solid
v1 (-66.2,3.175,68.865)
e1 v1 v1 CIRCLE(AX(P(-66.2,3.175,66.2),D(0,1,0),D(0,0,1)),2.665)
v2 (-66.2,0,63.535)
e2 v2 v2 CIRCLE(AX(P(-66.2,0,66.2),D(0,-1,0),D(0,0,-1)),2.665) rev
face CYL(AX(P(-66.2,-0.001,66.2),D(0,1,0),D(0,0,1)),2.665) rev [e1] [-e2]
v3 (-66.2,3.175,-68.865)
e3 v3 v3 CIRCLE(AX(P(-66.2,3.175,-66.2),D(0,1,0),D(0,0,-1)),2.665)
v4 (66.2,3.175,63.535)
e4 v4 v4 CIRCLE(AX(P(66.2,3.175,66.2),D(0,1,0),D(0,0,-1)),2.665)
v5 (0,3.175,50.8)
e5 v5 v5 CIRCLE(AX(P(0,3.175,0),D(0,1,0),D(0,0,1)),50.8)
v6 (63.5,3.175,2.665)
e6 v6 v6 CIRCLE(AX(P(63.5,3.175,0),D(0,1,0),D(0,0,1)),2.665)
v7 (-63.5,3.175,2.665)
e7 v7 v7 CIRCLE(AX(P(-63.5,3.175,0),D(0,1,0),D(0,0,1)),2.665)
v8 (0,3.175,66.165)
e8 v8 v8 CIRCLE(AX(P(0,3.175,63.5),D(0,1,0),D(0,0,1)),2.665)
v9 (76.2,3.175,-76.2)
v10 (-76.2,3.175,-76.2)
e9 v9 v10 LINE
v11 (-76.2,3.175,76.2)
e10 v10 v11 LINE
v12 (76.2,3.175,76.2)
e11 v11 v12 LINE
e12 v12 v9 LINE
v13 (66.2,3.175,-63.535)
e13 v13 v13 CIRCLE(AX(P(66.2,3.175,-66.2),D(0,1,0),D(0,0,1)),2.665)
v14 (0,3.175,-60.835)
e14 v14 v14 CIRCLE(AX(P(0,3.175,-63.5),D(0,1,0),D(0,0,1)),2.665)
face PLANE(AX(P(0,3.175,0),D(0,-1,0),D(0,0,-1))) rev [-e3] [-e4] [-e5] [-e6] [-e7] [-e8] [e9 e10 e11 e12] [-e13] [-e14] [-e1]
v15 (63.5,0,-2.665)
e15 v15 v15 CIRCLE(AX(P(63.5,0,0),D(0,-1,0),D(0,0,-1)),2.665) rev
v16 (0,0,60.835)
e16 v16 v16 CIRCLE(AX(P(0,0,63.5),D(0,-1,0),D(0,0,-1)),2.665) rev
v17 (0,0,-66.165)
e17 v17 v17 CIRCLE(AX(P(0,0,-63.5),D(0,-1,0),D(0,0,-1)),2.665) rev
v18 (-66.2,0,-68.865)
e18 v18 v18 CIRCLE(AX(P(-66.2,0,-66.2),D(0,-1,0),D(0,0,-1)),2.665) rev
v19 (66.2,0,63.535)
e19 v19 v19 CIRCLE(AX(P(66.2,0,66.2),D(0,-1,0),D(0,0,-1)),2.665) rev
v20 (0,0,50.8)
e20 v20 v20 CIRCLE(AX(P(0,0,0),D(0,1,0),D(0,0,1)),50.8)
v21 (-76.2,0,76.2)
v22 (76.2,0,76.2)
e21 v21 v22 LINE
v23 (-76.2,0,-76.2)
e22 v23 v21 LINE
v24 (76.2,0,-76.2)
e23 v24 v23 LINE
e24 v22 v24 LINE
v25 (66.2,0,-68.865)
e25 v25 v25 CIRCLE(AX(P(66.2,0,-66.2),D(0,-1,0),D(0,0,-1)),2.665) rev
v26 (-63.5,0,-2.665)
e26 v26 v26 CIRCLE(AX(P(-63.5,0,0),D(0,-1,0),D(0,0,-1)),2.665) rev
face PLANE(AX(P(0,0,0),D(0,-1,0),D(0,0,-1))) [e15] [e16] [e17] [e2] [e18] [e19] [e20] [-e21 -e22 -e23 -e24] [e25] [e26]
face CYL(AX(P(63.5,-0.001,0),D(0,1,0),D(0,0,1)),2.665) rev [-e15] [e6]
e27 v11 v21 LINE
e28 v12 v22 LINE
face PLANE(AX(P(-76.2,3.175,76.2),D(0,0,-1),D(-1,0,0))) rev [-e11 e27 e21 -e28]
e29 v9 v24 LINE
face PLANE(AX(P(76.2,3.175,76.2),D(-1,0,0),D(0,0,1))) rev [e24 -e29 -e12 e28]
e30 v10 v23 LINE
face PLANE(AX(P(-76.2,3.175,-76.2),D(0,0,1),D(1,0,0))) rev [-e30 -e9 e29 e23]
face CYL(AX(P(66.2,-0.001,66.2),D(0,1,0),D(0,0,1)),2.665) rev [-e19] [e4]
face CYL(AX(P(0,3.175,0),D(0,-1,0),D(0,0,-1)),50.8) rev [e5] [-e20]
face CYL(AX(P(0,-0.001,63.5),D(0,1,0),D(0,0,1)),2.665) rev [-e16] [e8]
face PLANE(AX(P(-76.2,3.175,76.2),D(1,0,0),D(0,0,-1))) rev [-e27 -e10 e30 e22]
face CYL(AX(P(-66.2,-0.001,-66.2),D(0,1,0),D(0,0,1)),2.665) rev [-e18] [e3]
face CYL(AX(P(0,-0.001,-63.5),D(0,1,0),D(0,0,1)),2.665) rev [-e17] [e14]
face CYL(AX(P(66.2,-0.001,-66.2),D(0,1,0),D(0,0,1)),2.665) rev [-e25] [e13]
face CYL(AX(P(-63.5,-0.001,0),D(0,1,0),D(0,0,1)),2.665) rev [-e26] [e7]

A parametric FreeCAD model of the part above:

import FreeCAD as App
import Part
import Sketcher

V = App.Vector
Q = App.Units.Quantity

doc = App.newDocument("Part")
body = doc.addObject("PartDesign::Body", "Body")

sketch1 = body.newObject("Sketcher::SketchObject", "Sketch")
sketch1.AttachmentSupport = (doc.getObject("XZ_Plane"), [""])
sketch1.MapMode = "FlatFace"
sketch1.addGeometry([
    Part.LineSegment(V(-76.2, -76.2, 0), V(-76.2, 76.2, 0)),
    Part.LineSegment(V(-76.2, 76.2, 0), V(76.2, 76.2, 0)),
    Part.LineSegment(V(76.2, 76.2, 0), V(76.2, -76.2, 0)),
    Part.LineSegment(V(76.2, -76.2, 0), V(-76.2, -76.2, 0)),
    Part.Circle(V(0, 0, 0), V(0, 0, 1), 50.8),
], False)
sketch1.addConstraint([
    Sketcher.Constraint("Coincident", 0, 2, 1, 1),
    Sketcher.Constraint("Coincident", 1, 2, 2, 1),
    Sketcher.Constraint("Coincident", 2, 2, 3, 1),
    Sketcher.Constraint("Coincident", 3, 2, 0, 1),
    Sketcher.Constraint("Vertical", 0),
    Sketcher.Constraint("Horizontal", 1),
    Sketcher.Constraint("Vertical", 2),
    Sketcher.Constraint("Horizontal", 3),
    Sketcher.Constraint("Coincident", 4, 3, -1, 1),
    Sketcher.Constraint("Symmetric", 0, 2, 2, 2, -1, 1),
    Sketcher.Constraint("Equal", 3, 0),
    Sketcher.Constraint("Diameter", 4, Q("4 in")),
    Sketcher.Constraint("DistanceX", 1, 1, 1, 2, Q("6 in")),
])
pad1 = body.newObject("PartDesign::Pad", "Pad")
pad1.Profile = sketch1
pad1.Length = Q("0.125 in")
pad1.Reversed = True

sketch2 = body.newObject("Sketcher::SketchObject", "Sketch001")
sketch2.AttachmentSupport = (doc.getObject("XZ_Plane"), [""])
sketch2.MapMode = "FlatFace"
sketch2.AttachmentOffset = App.Placement(V(0, 0, -0.125 * 25.4), App.Rotation())
sketch2.addGeometry(Part.Circle(V(-66.2, 66.2, 0), V(0, 0, 1), 2.665), False)
sketch2.addConstraint([
    Sketcher.Constraint("Diameter", 0, Q("5.33 mm")),
    Sketcher.Constraint("DistanceX", 0, 3, -1, 1, Q("66.2 mm")),
    Sketcher.Constraint("DistanceY", -1, 1, 0, 3, Q("66.2 mm")),
])
pocket1 = body.newObject("PartDesign::Pocket", "Pocket")
pocket1.Profile = sketch2
pocket1.Type = "UpToFirst"
pocket1.Reversed = True

sketch3 = body.newObject("Sketcher::SketchObject", "Sketch002")
sketch3.AttachmentSupport = (doc.getObject("XZ_Plane"), [""])
sketch3.MapMode = "FlatFace"
sketch3.AttachmentOffset = App.Placement(V(0, 0, -0.125 * 25.4), App.Rotation())
sketch3.addGeometry(Part.Circle(V(-66.2, -66.2, 0), V(0, 0, 1), 2.665), False)
sketch3.addConstraint([
    Sketcher.Constraint("Diameter", 0, Q("5.33 mm")),
    Sketcher.Constraint("DistanceX", 0, 3, -1, 1, Q("66.2 mm")),
    Sketcher.Constraint("DistanceY", 0, 3, -1, 1, Q("66.2 mm")),
])
pocket2 = body.newObject("PartDesign::Pocket", "Pocket001")
pocket2.Profile = sketch3
pocket2.Type = "UpToFirst"
pocket2.Reversed = True

sketch4 = body.newObject("Sketcher::SketchObject", "Sketch003")
sketch4.AttachmentSupport = (doc.getObject("XZ_Plane"), [""])
sketch4.MapMode = "FlatFace"
sketch4.AttachmentOffset = App.Placement(V(0, 0, -0.125 * 25.4), App.Rotation())
sketch4.addGeometry(Part.Circle(V(66.2, -66.2, 0), V(0, 0, 1), 2.665), False)
sketch4.addConstraint([
    Sketcher.Constraint("Diameter", 0, Q("5.33 mm")),
    Sketcher.Constraint("DistanceX", -1, 1, 0, 3, Q("66.2 mm")),
    Sketcher.Constraint("DistanceY", 0, 3, -1, 1, Q("66.2 mm")),
])
pocket3 = body.newObject("PartDesign::Pocket", "Pocket002")
pocket3.Profile = sketch4
pocket3.Type = "UpToFirst"
pocket3.Reversed = True

sketch5 = body.newObject("Sketcher::SketchObject", "Sketch004")
sketch5.AttachmentSupport = (doc.getObject("XZ_Plane"), [""])
sketch5.MapMode = "FlatFace"
sketch5.AttachmentOffset = App.Placement(V(0, 0, -0.125 * 25.4), App.Rotation())
sketch5.addGeometry(Part.Circle(V(66.2, 66.2, 0), V(0, 0, 1), 2.665), False)
sketch5.addConstraint([
    Sketcher.Constraint("Diameter", 0, Q("5.33 mm")),
    Sketcher.Constraint("DistanceX", -1, 1, 0, 3, Q("66.2 mm")),
    Sketcher.Constraint("DistanceY", -1, 1, 0, 3, Q("66.2 mm")),
])
pocket4 = body.newObject("PartDesign::Pocket", "Pocket003")
pocket4.Profile = sketch5
pocket4.Type = "UpToFirst"
pocket4.Reversed = True

sketch6 = body.newObject("Sketcher::SketchObject", "Sketch005")
sketch6.AttachmentSupport = (doc.getObject("XZ_Plane"), [""])
sketch6.MapMode = "FlatFace"
sketch6.AttachmentOffset = App.Placement(V(0, 0, -0.125 * 25.4), App.Rotation())
sketch6.addGeometry(Part.Circle(V(0, -63.5, 0), V(0, 0, 1), 2.665), False)
sketch6.addConstraint([
    Sketcher.Constraint("PointOnObject", 0, 3, -2),
    Sketcher.Constraint("DistanceY", 0, 3, -1, 1, Q("2.5 in")),
    Sketcher.Constraint("Diameter", 0, Q("5.33 mm")),
])
pocket5 = body.newObject("PartDesign::Pocket", "Pocket004")
pocket5.Profile = sketch6
pocket5.Type = "UpToFirst"
pocket5.Reversed = True

sketch7 = body.newObject("Sketcher::SketchObject", "Sketch006")
sketch7.AttachmentSupport = (doc.getObject("XZ_Plane"), [""])
sketch7.MapMode = "FlatFace"
sketch7.AttachmentOffset = App.Placement(V(0, 0, -0.125 * 25.4), App.Rotation())
sketch7.addGeometry(Part.Circle(V(-63.5, 0, 0), V(0, 0, 1), 2.665), False)
sketch7.addConstraint([
    Sketcher.Constraint("PointOnObject", 0, 3, -1),
    Sketcher.Constraint("DistanceX", 0, 3, -1, 1, Q("2.5 in")),
    Sketcher.Constraint("Diameter", 0, Q("5.33 mm")),
])
pocket6 = body.newObject("PartDesign::Pocket", "Pocket005")
pocket6.Profile = sketch7
pocket6.Type = "UpToFirst"
pocket6.Reversed = True

sketch8 = body.newObject("Sketcher::SketchObject", "Sketch007")
sketch8.AttachmentSupport = (doc.getObject("XZ_Plane"), [""])
sketch8.MapMode = "FlatFace"
sketch8.AttachmentOffset = App.Placement(V(0, 0, -0.125 * 25.4), App.Rotation())
sketch8.addGeometry(Part.Circle(V(0, 63.5, 0), V(0, 0, 1), 2.665), False)
sketch8.addConstraint([
    Sketcher.Constraint("PointOnObject", 0, 3, -2),
    Sketcher.Constraint("DistanceY", -1, 1, 0, 3, Q("2.5 in")),
    Sketcher.Constraint("Diameter", 0, Q("5.33 mm")),
])
pocket7 = body.newObject("PartDesign::Pocket", "Pocket006")
pocket7.Profile = sketch8
pocket7.Type = "UpToFirst"
pocket7.Reversed = True

sketch9 = body.newObject("Sketcher::SketchObject", "Sketch008")
sketch9.AttachmentSupport = (doc.getObject("XZ_Plane"), [""])
sketch9.MapMode = "FlatFace"
sketch9.AttachmentOffset = App.Placement(V(0, 0, -0.125 * 25.4), App.Rotation())
sketch9.addGeometry(Part.Circle(V(63.5, 0, 0), V(0, 0, 1), 2.665), False)
sketch9.addConstraint([
    Sketcher.Constraint("PointOnObject", 0, 3, -1),
    Sketcher.Constraint("DistanceX", -1, 1, 0, 3, Q("2.5 in")),
    Sketcher.Constraint("Diameter", 0, Q("5.33 mm")),
])
pocket8 = body.newObject("PartDesign::Pocket", "Pocket007")
pocket8.Profile = sketch9
pocket8.Type = "UpToFirst"
pocket8.Reversed = True

doc.recompute()
